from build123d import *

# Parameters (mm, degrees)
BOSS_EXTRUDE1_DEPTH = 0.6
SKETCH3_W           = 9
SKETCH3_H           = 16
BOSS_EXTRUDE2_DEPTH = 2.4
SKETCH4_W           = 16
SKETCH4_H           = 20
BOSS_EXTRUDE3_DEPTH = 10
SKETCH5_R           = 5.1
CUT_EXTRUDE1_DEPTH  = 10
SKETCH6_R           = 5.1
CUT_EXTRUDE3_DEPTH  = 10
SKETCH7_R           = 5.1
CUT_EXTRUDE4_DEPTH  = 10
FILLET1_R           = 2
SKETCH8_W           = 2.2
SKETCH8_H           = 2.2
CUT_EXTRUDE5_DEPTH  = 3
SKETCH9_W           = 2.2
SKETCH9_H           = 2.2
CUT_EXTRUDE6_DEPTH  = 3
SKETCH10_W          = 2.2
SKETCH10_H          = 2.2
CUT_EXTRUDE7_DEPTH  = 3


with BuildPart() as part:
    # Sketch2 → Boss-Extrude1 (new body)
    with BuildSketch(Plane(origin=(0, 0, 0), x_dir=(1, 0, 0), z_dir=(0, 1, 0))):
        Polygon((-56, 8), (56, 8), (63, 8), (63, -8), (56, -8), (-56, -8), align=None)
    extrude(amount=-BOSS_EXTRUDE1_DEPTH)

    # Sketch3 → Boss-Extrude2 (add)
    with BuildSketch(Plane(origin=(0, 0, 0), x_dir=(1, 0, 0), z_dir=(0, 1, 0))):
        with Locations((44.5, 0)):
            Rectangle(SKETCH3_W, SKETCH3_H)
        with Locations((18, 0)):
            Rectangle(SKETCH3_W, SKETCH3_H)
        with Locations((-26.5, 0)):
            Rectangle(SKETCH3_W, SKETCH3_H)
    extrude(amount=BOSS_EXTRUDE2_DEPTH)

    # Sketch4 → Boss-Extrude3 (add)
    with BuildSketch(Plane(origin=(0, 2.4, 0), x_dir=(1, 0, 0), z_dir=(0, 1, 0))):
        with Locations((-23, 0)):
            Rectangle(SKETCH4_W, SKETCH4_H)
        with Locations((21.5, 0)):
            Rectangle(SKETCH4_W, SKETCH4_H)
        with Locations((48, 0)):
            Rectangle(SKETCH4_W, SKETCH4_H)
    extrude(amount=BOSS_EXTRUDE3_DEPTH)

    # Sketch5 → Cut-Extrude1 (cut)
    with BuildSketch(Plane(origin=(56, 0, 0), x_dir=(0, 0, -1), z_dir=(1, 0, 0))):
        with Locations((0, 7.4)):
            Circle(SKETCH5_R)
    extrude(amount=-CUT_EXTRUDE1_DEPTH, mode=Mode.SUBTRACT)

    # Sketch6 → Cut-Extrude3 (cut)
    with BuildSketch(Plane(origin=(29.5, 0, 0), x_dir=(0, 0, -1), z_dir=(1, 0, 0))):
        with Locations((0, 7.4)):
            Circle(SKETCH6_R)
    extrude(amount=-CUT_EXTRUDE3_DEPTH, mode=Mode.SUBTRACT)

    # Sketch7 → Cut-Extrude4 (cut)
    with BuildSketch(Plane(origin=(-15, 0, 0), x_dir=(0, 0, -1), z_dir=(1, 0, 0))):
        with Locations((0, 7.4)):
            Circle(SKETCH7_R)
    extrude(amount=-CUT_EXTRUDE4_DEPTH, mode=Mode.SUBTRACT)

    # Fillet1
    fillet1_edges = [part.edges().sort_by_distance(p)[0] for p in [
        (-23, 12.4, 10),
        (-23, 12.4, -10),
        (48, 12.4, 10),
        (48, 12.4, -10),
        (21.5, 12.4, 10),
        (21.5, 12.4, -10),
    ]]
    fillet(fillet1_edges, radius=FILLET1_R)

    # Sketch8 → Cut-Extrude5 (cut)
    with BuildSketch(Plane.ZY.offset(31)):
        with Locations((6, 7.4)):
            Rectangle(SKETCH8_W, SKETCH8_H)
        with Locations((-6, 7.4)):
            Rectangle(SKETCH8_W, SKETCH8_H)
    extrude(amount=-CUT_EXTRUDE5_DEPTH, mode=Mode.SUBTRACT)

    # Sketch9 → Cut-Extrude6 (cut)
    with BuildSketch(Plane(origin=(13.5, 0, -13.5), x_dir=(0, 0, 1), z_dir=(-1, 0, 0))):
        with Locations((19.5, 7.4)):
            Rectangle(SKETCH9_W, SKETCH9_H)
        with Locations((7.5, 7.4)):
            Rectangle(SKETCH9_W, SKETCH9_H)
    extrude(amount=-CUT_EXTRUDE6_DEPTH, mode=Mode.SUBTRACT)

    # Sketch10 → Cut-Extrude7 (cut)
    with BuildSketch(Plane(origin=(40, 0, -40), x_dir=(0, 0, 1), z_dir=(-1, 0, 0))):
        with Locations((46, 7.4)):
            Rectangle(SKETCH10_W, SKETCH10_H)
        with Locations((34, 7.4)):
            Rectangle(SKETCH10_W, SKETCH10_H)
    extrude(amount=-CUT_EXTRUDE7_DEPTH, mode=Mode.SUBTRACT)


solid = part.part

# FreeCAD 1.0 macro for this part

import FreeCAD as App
import Part
import Sketcher

V = App.Vector


def edges_at(feature, points):
    """Names of the edges that pass closest to the given points."""
    edges = feature.Shape.Edges
    near = lambda p: min(range(len(edges)), key=lambda i: edges[i].distToShape(Part.Vertex(*p))[0])
    return sorted({f"Edge{near(p) + 1}" for p in points})


def add_polygon(sketch, points):
    """Adds a closed chain of lines whose ends are joined by coincident constraints."""
    first, n = sketch.GeometryCount, len(points)
    for a, b in zip(points, points[1:] + points[:1]):
        sketch.addGeometry(Part.LineSegment(App.Vector(*a, 0), App.Vector(*b, 0)), False)
    for i in range(n):
        sketch.addConstraint(Sketcher.Constraint("Coincident", first + i, 2, first + (i + 1) % n, 1))

doc = App.newDocument("Part")
body = doc.addObject("PartDesign::Body", "Body")

# Sketch on XZ plane
sketch1 = body.newObject("Sketcher::SketchObject", "Sketch")
sketch1.AttachmentSupport = (doc.getObject("XZ_Plane"), [""])
sketch1.MapMode = "FlatFace"
add_polygon(sketch1, [(63, -8), (-56, -8), (-56, 8), (63, 8)])  # lines 0-3
sketch1.addConstraint([
    Sketcher.Constraint("Horizontal", 0),
    Sketcher.Constraint("Vertical", 1),
    Sketcher.Constraint("Horizontal", 2),
    Sketcher.Constraint("Vertical", 3),
    Sketcher.Constraint("DistanceX", 0, 2, 0, 1, 119.0),
    Sketcher.Constraint("DistanceY", 1, 1, 1, 2, 16.0),
    Sketcher.Constraint("DistanceX", 0, 2, -1, 1, 56.0),
    Sketcher.Constraint("DistanceY", 0, 2, -1, 1, 8.0),
])
pad1 = body.newObject("PartDesign::Pad", "Pad")
pad1.Profile = sketch1
pad1.Length = 0.6

# Sketch on XZ plane
sketch2 = body.newObject("Sketcher::SketchObject", "Sketch001")
sketch2.AttachmentSupport = (doc.getObject("XZ_Plane"), [""])
sketch2.MapMode = "FlatFace"
add_polygon(sketch2, [(40, -8), (40, 8), (49, 8), (49, -8)])  # lines 0-3
add_polygon(sketch2, [(14, -8), (14, 8), (22, 8), (22, -8)])  # lines 4-7
add_polygon(sketch2, [(-31, -8), (-31, 8), (-22, 8), (-22, -8)])  # lines 8-11
sketch2.addConstraint([
    Sketcher.Constraint("Vertical", 0),
    Sketcher.Constraint("Horizontal", 1),
    Sketcher.Constraint("Vertical", 2),
    Sketcher.Constraint("Horizontal", 3),
    Sketcher.Constraint("Vertical", 4),
    Sketcher.Constraint("Horizontal", 5),
    Sketcher.Constraint("Vertical", 6),
    Sketcher.Constraint("Horizontal", 7),
    Sketcher.Constraint("Vertical", 8),
    Sketcher.Constraint("Horizontal", 9),
    Sketcher.Constraint("Vertical", 10),
    Sketcher.Constraint("Horizontal", 11),
    Sketcher.Constraint("Horizontal", 1, 2, 4, 2),
    Sketcher.Constraint("Horizontal", 3, 2, 6, 2),
    Sketcher.Constraint("Horizontal", 5, 2, 8, 2),
    Sketcher.Constraint("Horizontal", 7, 2, 10, 2),
    Sketcher.Constraint("Equal", 3, 5),
    Sketcher.Constraint("Equal", 7, 9),
    Sketcher.Constraint("DistanceX", 1, 1, 1, 2, 9.0),
    Sketcher.Constraint("DistanceY", 0, 1, 0, 2, 16.0),
    Sketcher.Constraint("DistanceX", -1, 1, 0, 2, 40.0),
    Sketcher.Constraint("DistanceY", -1, 1, 0, 2, 8.0),
    Sketcher.Constraint("DistanceX", 8, 2, -1, 1, 31.0),
    Sketcher.Constraint("DistanceX", -1, 1, 4, 2, 13.5),
])
pad2 = body.newObject("PartDesign::Pad", "Pad001")
pad2.Profile = sketch2
pad2.Length = 2.4
pad2.Reversed = True

# Sketch on XZ plane
sketch3 = body.newObject("Sketcher::SketchObject", "Sketch002")
sketch3.AttachmentSupport = (doc.getObject("XZ_Plane"), [""])
sketch3.MapMode = "FlatFace"
sketch3.AttachmentOffset = App.Placement(V(0, 0, -2.4), App.Rotation())
add_polygon(sketch3, [(-31, -10), (-31, 10), (-15, 10), (-15, -10)])  # lines 0-3
add_polygon(sketch3, [(14, -10), (14, 10), (30, 10), (30, -10)])  # lines 4-7
add_polygon(sketch3, [(40, -10), (40, 10), (56, 10), (56, -10)])  # lines 8-11
sketch3.addConstraint([
    Sketcher.Constraint("Vertical", 0),
    Sketcher.Constraint("Horizontal", 1),
    Sketcher.Constraint("Vertical", 2),
    Sketcher.Constraint("Horizontal", 3),
    Sketcher.Constraint("Vertical", 4),
    Sketcher.Constraint("Horizontal", 5),
    Sketcher.Constraint("Vertical", 6),
    Sketcher.Constraint("Horizontal", 7),
    Sketcher.Constraint("Vertical", 8),
    Sketcher.Constraint("Horizontal", 9),
    Sketcher.Constraint("Vertical", 10),
    Sketcher.Constraint("Horizontal", 11),
    Sketcher.Constraint("Horizontal", 1, 2, 4, 2),
    Sketcher.Constraint("Horizontal", 3, 2, 6, 2),
    Sketcher.Constraint("Horizontal", 5, 2, 8, 2),
    Sketcher.Constraint("Horizontal", 7, 2, 10, 2),
    Sketcher.Constraint("Equal", 3, 5),
    Sketcher.Constraint("Equal", 7, 9),
    Sketcher.Constraint("DistanceX", 1, 1, 1, 2, 16.0),
    Sketcher.Constraint("DistanceY", 0, 1, 0, 2, 20.0),
    Sketcher.Constraint("DistanceX", 0, 2, -1, 1, 31.0),
    Sketcher.Constraint("DistanceY", -1, 1, 0, 2, 10.0),
    Sketcher.Constraint("DistanceX", -1, 1, 8, 2, 40.0),
    Sketcher.Constraint("DistanceX", -1, 1, 4, 2, 13.5),
])
pad3 = body.newObject("PartDesign::Pad", "Pad002")
pad3.Profile = sketch3
pad3.Length = 10
pad3.Reversed = True

# Sketch on YZ plane
sketch4 = body.newObject("Sketcher::SketchObject", "Sketch003")
sketch4.AttachmentSupport = (doc.getObject("YZ_Plane"), [""])
sketch4.MapMode = "FlatFace"
sketch4.AttachmentOffset = App.Placement(V(0, 0, 56), App.Rotation())
sketch4.addGeometry(Part.Circle(V(7, 0, 0), V(0, 0, 1), 5), False)
sketch4.addConstraint([
    Sketcher.Constraint("PointOnObject", 0, 3, -1),
    Sketcher.Constraint("Diameter", 0, 10.2),
    Sketcher.Constraint("DistanceX", -1, 1, 0, 3, 7.4),
])
pocket1 = body.newObject("PartDesign::Pocket", "Pocket")
pocket1.Profile = sketch4
pocket1.Length = 10

# Sketch on YZ plane
sketch5 = body.newObject("Sketcher::SketchObject", "Sketch004")
sketch5.AttachmentSupport = (doc.getObject("YZ_Plane"), [""])
sketch5.MapMode = "FlatFace"
sketch5.AttachmentOffset = App.Placement(V(0, 0, 29.5), App.Rotation())
sketch5.addGeometry(Part.Circle(V(7, 0, 0), V(0, 0, 1), 5), False)
sketch5.addConstraint([
    Sketcher.Constraint("PointOnObject", 0, 3, -1),
    Sketcher.Constraint("Diameter", 0, 10.2),
    Sketcher.Constraint("DistanceX", -1, 1, 0, 3, 7.4),
])
pocket2 = body.newObject("PartDesign::Pocket", "Pocket001")
pocket2.Profile = sketch5
pocket2.Length = 10

# Sketch on YZ plane
sketch6 = body.newObject("Sketcher::SketchObject", "Sketch005")
sketch6.AttachmentSupport = (doc.getObject("YZ_Plane"), [""])
sketch6.MapMode = "FlatFace"
sketch6.AttachmentOffset = App.Placement(V(0, 0, -15), App.Rotation())
sketch6.addGeometry(Part.Circle(V(7, 0, 0), V(0, 0, 1), 5), False)
sketch6.addConstraint([
    Sketcher.Constraint("PointOnObject", 0, 3, -1),
    Sketcher.Constraint("Diameter", 0, 10.2),
    Sketcher.Constraint("DistanceX", -1, 1, 0, 3, 7.4),
])
pocket3 = body.newObject("PartDesign::Pocket", "Pocket002")
pocket3.Profile = sketch6
pocket3.Length = 10
doc.recompute()

fillet = body.newObject("PartDesign::Fillet", "Fillet")
fillet.Base = (pocket3, edges_at(pocket3, [
    (-23, 12.4, 10),
    (-23, 12.4, -10),
    (48, 12.4, 10),
    (48, 12.4, -10),
    (21.5, 12.4, 10),
    (21.5, 12.4, -10),
]))
fillet.Radius = 2

# Sketch on YZ plane
sketch7 = body.newObject("Sketcher::SketchObject", "Sketch006")
sketch7.AttachmentSupport = (doc.getObject("YZ_Plane"), [""])
sketch7.MapMode = "FlatFace"
sketch7.AttachmentOffset = App.Placement(V(0, 0, -31), App.Rotation())
add_polygon(sketch7, [(8.5, 4.9), (6.3, 4.9), (6.3, 7.1), (8.5, 7.1)])  # lines 0-3
add_polygon(sketch7, [(8.5, -7.1), (6.3, -7.1), (6.3, -4.9), (8.5, -4.9)])  # lines 4-7
sketch7.addConstraint([
    Sketcher.Constraint("Horizontal", 0),
    Sketcher.Constraint("Vertical", 1),
    Sketcher.Constraint("Horizontal", 2),
    Sketcher.Constraint("Vertical", 3),
    Sketcher.Constraint("Horizontal", 4),
    Sketcher.Constraint("Vertical", 5),
    Sketcher.Constraint("Horizontal", 6),
    Sketcher.Constraint("Vertical", 7),
    Sketcher.Constraint("Symmetric", 1, 2, 4, 2, -1),
    Sketcher.Constraint("Symmetric", 3, 2, 6, 2, -1),
    Sketcher.Constraint("Equal", 6, 1),
    Sketcher.Constraint("DistanceX", 0, 2, 0, 1, 2.2),
    Sketcher.Constraint("DistanceY", 4, 2, 0, 2, 12.0),
    Sketcher.Constraint("DistanceX", -1, 1, 0, 2, 6.3),
])
pocket4 = body.newObject("PartDesign::Pocket", "Pocket003")
pocket4.Profile = sketch7
pocket4.Length = 3
pocket4.Reversed = True

# Sketch on YZ plane
sketch8 = body.newObject("Sketcher::SketchObject", "Sketch007")
sketch8.AttachmentSupport = (doc.getObject("YZ_Plane"), [""])
sketch8.MapMode = "FlatFace"
sketch8.AttachmentOffset = App.Placement(V(0, 0, 13.5), App.Rotation())
add_polygon(sketch8, [(8.5, 4.9), (6.3, 4.9), (6.3, 7.1), (8.5, 7.1)])  # lines 0-3
add_polygon(sketch8, [(8.5, -7.1), (6.3, -7.1), (6.3, -4.9), (8.5, -4.9)])  # lines 4-7
sketch8.addConstraint([
    Sketcher.Constraint("Horizontal", 0),
    Sketcher.Constraint("Vertical", 1),
    Sketcher.Constraint("Horizontal", 2),
    Sketcher.Constraint("Vertical", 3),
    Sketcher.Constraint("Horizontal", 4),
    Sketcher.Constraint("Vertical", 5),
    Sketcher.Constraint("Horizontal", 6),
    Sketcher.Constraint("Vertical", 7),
    Sketcher.Constraint("Symmetric", 1, 2, 4, 2, -1),
    Sketcher.Constraint("Symmetric", 3, 2, 6, 2, -1),
    Sketcher.Constraint("Equal", 6, 1),
    Sketcher.Constraint("DistanceX", 0, 2, 0, 1, 2.2),
    Sketcher.Constraint("DistanceY", 4, 2, 0, 2, 12.0),
    Sketcher.Constraint("DistanceX", -1, 1, 0, 2, 6.3),
])
pocket5 = body.newObject("PartDesign::Pocket", "Pocket004")
pocket5.Profile = sketch8
pocket5.Length = 3
pocket5.Reversed = True

# Sketch on YZ plane
sketch9 = body.newObject("Sketcher::SketchObject", "Sketch008")
sketch9.AttachmentSupport = (doc.getObject("YZ_Plane"), [""])
sketch9.MapMode = "FlatFace"
sketch9.AttachmentOffset = App.Placement(V(0, 0, 40), App.Rotation())
add_polygon(sketch9, [(8.5, 4.9), (6.3, 4.9), (6.3, 7.1), (8.5, 7.1)])  # lines 0-3
add_polygon(sketch9, [(8.5, -7.1), (6.3, -7.1), (6.3, -4.9), (8.5, -4.9)])  # lines 4-7
sketch9.addConstraint([
    Sketcher.Constraint("Horizontal", 0),
    Sketcher.Constraint("Vertical", 1),
    Sketcher.Constraint("Horizontal", 2),
    Sketcher.Constraint("Vertical", 3),
    Sketcher.Constraint("Horizontal", 4),
    Sketcher.Constraint("Vertical", 5),
    Sketcher.Constraint("Horizontal", 6),
    Sketcher.Constraint("Vertical", 7),
    Sketcher.Constraint("Symmetric", 1, 2, 4, 2, -1),
    Sketcher.Constraint("Symmetric", 3, 2, 6, 2, -1),
    Sketcher.Constraint("Equal", 6, 1),
    Sketcher.Constraint("DistanceX", 0, 2, 0, 1, 2.2),
    Sketcher.Constraint("DistanceY", 4, 2, 0, 2, 12.0),
    Sketcher.Constraint("DistanceX", -1, 1, 0, 2, 6.3),
])
pocket6 = body.newObject("PartDesign::Pocket", "Pocket005")
pocket6.Profile = sketch9
pocket6.Length = 3
pocket6.Reversed = True

doc.recompute()
